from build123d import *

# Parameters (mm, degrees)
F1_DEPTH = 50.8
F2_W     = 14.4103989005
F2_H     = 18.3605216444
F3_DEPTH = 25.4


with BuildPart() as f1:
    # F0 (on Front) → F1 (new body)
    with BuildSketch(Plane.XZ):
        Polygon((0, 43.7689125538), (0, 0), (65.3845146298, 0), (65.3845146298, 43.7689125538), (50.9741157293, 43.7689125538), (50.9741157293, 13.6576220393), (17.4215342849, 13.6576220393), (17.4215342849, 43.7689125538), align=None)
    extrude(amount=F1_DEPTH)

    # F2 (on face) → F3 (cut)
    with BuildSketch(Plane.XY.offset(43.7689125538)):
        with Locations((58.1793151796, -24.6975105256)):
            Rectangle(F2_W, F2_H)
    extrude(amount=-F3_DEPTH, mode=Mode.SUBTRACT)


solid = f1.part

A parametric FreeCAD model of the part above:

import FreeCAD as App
import Part
import Sketcher
from FreeCAD import Vector
Q = App.Units.Quantity


def add_polygon(sketch, points):
    """Adds a closed chain of lines whose ends are joined by coincident constraints."""
    first, n = sketch.GeometryCount, len(points)
    for a, b in zip(points, points[1:] + points[:1]):
        sketch.addGeometry(Part.LineSegment(App.Vector(*a, 0), App.Vector(*b, 0)), False)
    for i in range(n):
        sketch.addConstraint(Sketcher.Constraint("Coincident", first + i, 2, first + (i + 1) % n, 1))

doc = App.newDocument("Part")
body = doc.addObject("PartDesign::Body", "Body")

sketch1 = doc.addObject("Sketcher::SketchObject", "Sketch")
body.addObject(sketch1)
sketch1.AttachmentSupport = (doc.XZ_Plane, [""])
sketch1.MapMode = "FlatFace"
add_polygon(sketch1, [(0, 44), (0, 0), (65, 0), (65, 44), (51, 44), (51, 14), (17, 14), (17, 44)])
sketch1.addConstraint([
    Sketcher.Constraint("Vertical", 0),
    Sketcher.Constraint("Horizontal", 1),
    Sketcher.Constraint("Vertical", 2),
    Sketcher.Constraint("Horizontal", 3),
    Sketcher.Constraint("Vertical", 4),
    Sketcher.Constraint("Horizontal", 5),
    Sketcher.Constraint("Vertical", 6),
    Sketcher.Constraint("Horizontal", 7),
    Sketcher.Constraint("Coincident", 0, 2, -1, 1),
    Sketcher.Constraint("Horizontal", 3, 2, 6, 2),
    Sketcher.Constraint("DistanceX", 3, 2, 3, 1, 14.410399),
    Sketcher.Constraint("DistanceX", 5, 2, 5, 1, 33.552581),
    Sketcher.Constraint("DistanceY", 4, 2, 4, 1, 30.111291),
    Sketcher.Constraint("DistanceX", 1, 1, 1, 2, 65.384515),
    Sketcher.Constraint("DistanceY", 0, 2, 0, 1, 43.768913),
])
pad1 = doc.addObject("PartDesign::Pad", "Pad")
body.addObject(pad1)
pad1.Profile = sketch1
pad1.Length = Q("2 in")

sketch2 = doc.addObject("Sketcher::SketchObject", "Sketch001")
body.addObject(sketch2)
sketch2.AttachmentSupport = (doc.XY_Plane, [""])
sketch2.MapMode = "FlatFace"
sketch2.AttachmentOffset = App.Placement(Vector(0, 0, 43.768913), App.Rotation())
add_polygon(sketch2, [(51, -16), (51, -34), (65, -34), (65, -16)])
sketch2.addConstraint([
    Sketcher.Constraint("Vertical", 0),
    Sketcher.Constraint("Horizontal", 1),
    Sketcher.Constraint("Vertical", 2),
    Sketcher.Constraint("Horizontal", 3),
    Sketcher.Constraint("DistanceX", 1, 1, 1, 2, 14.410399),
    Sketcher.Constraint("DistanceY", 0, 2, 0, 1, 18.360522),
    Sketcher.Constraint("DistanceY", 0, 2, -1, 1, 33.877771),
    Sketcher.Constraint("DistanceX", -1, 1, 0, 2, 50.974116),
])
pocket1 = doc.addObject("PartDesign::Pocket", "Pocket")
body.addObject(pocket1)
pocket1.Profile = sketch2
pocket1.Length = Q("1 in")

doc.recompute()
